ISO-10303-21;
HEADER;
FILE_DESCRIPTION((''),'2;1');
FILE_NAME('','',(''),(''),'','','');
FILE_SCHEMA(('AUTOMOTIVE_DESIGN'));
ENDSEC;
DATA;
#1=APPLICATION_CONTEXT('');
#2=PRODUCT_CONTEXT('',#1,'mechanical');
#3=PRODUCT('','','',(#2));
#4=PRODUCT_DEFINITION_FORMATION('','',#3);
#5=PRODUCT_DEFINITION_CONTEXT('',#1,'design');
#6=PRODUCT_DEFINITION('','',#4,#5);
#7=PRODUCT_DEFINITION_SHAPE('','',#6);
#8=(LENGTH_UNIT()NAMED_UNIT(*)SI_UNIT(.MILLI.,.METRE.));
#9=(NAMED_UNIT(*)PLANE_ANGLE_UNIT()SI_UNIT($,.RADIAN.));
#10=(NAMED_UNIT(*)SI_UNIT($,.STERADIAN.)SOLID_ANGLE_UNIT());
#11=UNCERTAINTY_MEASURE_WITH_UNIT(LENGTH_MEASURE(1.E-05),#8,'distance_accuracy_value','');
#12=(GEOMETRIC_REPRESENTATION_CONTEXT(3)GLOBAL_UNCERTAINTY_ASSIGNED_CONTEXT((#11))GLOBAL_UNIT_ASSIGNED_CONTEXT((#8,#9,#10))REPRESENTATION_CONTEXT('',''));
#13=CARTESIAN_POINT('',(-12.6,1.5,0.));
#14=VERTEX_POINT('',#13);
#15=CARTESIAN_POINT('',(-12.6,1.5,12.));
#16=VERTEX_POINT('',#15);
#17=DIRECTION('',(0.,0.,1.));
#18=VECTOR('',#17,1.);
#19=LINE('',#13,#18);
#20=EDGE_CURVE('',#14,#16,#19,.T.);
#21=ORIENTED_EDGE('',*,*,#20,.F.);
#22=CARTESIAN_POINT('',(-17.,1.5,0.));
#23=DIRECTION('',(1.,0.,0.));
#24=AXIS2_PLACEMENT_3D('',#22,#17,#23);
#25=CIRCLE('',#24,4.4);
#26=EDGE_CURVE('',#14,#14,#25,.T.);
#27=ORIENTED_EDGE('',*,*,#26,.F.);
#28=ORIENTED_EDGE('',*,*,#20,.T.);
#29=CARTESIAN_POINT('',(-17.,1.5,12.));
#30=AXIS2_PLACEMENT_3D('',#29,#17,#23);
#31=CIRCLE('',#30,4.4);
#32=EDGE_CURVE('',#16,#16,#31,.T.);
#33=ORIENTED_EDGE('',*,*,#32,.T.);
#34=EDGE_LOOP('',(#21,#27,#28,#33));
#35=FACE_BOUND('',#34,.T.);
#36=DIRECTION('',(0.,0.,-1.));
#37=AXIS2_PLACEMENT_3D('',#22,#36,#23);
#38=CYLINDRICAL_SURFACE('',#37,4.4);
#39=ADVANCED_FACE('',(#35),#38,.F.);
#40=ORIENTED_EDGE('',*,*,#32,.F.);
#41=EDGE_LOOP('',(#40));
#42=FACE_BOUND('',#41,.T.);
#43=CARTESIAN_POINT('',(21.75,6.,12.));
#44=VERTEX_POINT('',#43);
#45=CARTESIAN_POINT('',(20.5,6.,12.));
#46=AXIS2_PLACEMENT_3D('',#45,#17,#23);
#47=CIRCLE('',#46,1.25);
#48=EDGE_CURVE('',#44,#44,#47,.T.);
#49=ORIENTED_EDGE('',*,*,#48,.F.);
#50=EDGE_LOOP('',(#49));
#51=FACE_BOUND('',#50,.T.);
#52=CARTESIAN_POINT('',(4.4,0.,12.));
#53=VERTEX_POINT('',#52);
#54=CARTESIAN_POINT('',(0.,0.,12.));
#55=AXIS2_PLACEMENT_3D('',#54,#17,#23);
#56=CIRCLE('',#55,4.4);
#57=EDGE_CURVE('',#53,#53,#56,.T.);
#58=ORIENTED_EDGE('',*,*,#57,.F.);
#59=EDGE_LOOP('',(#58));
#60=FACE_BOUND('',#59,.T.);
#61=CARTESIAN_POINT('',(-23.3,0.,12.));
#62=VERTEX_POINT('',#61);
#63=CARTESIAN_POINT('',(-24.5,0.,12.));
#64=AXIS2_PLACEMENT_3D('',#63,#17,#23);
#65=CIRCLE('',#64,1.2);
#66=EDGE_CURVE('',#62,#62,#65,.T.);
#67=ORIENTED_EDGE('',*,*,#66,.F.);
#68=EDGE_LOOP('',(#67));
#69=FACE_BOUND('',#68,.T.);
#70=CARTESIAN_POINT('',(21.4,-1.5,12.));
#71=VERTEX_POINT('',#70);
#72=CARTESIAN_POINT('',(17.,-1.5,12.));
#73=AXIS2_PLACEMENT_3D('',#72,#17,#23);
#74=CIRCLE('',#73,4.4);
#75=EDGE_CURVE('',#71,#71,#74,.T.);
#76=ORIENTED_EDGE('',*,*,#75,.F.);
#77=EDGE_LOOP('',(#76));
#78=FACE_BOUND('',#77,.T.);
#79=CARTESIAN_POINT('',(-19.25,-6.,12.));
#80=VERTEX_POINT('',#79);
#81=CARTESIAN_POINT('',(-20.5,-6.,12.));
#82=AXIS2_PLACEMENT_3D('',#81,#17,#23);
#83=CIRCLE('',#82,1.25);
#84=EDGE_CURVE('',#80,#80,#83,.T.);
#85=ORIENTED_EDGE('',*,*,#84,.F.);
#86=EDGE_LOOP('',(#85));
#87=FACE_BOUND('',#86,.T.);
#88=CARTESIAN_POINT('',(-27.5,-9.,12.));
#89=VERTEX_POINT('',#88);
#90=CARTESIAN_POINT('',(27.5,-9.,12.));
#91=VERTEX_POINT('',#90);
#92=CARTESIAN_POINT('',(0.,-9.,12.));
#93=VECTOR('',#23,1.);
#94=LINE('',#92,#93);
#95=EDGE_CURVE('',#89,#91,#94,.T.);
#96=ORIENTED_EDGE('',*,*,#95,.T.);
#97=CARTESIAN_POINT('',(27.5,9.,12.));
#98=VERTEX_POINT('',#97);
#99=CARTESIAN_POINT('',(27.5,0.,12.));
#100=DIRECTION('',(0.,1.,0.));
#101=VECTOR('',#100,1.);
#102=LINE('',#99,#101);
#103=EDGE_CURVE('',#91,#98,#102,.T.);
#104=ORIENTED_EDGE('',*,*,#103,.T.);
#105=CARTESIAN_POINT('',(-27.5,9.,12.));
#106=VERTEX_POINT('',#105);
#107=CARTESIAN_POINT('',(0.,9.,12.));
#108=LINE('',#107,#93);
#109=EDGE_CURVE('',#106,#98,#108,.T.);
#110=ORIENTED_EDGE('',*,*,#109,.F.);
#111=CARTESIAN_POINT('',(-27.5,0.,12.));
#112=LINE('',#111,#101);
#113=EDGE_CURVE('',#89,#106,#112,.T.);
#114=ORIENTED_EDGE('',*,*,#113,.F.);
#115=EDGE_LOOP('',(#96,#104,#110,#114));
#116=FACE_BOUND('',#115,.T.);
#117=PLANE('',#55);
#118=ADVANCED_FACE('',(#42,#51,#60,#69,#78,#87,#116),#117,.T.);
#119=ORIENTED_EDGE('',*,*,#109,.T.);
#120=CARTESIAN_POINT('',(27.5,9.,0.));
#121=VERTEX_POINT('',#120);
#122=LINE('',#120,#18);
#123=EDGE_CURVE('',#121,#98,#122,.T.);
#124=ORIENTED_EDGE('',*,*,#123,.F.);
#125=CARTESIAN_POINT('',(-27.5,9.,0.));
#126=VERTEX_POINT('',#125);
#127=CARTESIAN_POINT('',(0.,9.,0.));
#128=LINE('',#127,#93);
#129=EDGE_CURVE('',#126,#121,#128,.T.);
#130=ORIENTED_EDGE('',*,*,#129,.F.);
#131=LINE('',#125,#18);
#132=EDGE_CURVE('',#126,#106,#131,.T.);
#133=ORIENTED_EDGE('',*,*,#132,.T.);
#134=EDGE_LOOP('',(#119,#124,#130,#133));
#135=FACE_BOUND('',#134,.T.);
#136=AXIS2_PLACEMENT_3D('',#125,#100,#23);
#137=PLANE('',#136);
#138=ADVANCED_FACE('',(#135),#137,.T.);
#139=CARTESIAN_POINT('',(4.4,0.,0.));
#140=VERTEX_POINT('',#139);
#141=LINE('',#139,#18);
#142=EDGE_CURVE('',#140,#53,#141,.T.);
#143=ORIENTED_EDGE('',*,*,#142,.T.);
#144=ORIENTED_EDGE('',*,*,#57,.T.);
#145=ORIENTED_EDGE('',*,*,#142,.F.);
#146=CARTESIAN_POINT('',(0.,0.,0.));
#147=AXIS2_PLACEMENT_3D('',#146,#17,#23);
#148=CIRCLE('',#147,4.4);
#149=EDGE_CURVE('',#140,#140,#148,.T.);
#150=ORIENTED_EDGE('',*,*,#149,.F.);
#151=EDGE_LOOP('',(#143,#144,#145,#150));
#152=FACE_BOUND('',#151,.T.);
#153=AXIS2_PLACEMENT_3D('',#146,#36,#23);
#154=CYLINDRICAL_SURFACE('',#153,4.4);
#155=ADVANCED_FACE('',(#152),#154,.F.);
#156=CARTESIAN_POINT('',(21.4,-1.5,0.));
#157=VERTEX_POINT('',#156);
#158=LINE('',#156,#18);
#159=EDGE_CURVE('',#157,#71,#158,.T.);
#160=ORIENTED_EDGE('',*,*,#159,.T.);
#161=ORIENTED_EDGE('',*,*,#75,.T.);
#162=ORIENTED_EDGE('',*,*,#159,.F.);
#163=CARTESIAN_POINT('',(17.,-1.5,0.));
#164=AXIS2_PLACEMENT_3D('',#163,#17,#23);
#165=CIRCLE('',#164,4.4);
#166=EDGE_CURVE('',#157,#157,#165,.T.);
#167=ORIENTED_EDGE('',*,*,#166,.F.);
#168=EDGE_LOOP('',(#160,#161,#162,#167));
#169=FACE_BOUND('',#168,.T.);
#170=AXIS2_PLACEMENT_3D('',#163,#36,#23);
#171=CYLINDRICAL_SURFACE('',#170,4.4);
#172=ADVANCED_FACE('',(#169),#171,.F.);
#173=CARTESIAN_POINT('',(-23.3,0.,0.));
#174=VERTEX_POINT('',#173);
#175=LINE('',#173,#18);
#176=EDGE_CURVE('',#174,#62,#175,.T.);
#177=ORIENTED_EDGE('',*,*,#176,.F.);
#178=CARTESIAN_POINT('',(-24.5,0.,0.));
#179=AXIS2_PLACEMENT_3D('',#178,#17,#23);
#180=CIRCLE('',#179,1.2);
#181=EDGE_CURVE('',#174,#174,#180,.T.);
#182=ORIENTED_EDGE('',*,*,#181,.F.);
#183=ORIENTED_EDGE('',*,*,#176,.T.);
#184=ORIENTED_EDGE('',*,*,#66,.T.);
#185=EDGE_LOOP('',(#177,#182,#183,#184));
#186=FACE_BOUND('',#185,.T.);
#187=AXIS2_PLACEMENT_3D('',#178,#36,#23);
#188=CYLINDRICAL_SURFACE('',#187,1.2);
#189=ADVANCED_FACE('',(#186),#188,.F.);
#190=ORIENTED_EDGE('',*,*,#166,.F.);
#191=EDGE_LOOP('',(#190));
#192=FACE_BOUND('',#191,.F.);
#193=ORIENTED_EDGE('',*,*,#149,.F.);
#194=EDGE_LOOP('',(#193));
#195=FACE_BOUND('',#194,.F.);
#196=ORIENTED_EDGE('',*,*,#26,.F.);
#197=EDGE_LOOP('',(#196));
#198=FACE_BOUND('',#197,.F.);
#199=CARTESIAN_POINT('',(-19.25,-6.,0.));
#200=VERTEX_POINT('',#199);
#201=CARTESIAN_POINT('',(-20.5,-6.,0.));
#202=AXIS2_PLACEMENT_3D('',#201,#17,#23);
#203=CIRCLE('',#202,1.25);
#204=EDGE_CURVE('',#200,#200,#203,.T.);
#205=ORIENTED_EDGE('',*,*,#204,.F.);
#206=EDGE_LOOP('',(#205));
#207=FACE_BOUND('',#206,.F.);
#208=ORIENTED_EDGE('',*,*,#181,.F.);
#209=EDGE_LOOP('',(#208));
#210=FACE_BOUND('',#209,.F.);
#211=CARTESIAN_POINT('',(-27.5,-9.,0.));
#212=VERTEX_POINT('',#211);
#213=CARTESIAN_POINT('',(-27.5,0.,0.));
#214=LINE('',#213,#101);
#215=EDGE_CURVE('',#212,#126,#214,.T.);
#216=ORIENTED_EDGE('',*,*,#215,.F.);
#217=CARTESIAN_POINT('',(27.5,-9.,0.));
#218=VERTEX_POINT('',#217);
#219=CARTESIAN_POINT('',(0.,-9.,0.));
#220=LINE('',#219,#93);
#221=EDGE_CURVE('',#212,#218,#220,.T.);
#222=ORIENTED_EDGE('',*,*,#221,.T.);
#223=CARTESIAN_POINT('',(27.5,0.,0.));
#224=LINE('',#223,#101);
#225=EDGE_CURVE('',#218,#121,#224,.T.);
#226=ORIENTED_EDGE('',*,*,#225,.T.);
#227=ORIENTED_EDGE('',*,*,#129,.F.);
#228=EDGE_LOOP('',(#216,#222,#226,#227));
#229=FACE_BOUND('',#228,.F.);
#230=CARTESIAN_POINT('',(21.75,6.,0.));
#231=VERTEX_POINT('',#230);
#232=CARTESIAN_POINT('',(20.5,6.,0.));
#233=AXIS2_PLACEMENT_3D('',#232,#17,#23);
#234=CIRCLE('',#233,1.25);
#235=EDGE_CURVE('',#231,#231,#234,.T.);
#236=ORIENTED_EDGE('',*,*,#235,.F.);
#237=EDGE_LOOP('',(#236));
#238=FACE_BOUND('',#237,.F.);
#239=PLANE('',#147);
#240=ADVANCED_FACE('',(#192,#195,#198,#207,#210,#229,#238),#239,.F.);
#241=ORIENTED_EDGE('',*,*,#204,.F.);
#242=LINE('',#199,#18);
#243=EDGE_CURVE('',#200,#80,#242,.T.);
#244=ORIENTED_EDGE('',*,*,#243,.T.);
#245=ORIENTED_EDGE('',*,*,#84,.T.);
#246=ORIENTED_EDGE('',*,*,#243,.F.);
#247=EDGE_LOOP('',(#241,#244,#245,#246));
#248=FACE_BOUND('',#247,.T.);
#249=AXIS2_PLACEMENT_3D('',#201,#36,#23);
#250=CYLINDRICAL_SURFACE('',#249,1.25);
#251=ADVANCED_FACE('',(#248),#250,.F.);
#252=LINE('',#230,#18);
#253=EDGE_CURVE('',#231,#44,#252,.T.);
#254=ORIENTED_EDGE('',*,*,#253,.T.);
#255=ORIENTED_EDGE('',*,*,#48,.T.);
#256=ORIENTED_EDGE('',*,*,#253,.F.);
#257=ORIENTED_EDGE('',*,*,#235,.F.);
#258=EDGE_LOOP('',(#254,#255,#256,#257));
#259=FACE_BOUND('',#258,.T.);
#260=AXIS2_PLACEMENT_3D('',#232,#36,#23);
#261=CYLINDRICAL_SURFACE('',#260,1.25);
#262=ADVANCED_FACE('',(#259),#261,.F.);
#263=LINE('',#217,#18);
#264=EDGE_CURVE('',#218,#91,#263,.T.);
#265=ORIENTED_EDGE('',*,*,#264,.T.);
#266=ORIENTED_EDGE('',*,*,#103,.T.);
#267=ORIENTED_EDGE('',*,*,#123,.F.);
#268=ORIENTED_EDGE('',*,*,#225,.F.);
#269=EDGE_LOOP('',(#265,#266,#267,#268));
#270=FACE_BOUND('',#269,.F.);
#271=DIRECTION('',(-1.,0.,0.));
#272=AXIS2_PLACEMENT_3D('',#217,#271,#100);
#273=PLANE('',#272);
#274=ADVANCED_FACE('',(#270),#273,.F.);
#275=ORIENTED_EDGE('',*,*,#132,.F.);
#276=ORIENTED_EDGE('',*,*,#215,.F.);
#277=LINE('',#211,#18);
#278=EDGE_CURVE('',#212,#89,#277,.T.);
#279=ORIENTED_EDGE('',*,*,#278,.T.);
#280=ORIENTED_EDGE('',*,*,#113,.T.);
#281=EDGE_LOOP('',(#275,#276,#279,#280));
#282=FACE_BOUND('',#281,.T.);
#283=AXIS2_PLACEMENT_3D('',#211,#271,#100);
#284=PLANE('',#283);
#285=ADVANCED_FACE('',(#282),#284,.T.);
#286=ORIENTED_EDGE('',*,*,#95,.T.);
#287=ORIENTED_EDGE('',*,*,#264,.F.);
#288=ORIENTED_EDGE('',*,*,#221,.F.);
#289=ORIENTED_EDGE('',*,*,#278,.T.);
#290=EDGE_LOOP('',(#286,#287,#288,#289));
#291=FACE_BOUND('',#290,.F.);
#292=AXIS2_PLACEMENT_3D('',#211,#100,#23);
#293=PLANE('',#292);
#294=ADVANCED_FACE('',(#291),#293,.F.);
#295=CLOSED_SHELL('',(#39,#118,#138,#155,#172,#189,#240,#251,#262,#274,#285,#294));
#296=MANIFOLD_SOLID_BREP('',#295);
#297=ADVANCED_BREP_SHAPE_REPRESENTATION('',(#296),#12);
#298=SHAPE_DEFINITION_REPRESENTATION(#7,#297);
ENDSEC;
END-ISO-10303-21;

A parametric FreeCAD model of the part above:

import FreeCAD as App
import Part
import Sketcher

doc = App.newDocument("Part")
params = doc.addObject("Spreadsheet::Sheet", "Params")
for row, (alias, value) in enumerate([
    ("sketch1_diameter", "2.5 mm"),
    ("sketch1_diameter2", "8.8 mm"),
    ("sketch1_diameter3", "2.4 mm"),
    ("sketch1_width", "55 mm"),
    ("sketch1_height", "18 mm"),
    ("pad1_length", "12 mm"),
], start=1):
    params.set(f"A{row}", alias)
    params.set(f"B{row}", "=" + value)
    params.setAlias(f"B{row}", alias)

body = doc.addObject("PartDesign::Body", "Body")

sketch1 = doc.addObject("Sketcher::SketchObject", "Sketch")
body.addObject(sketch1)
sketch1.AttachmentSupport = (doc.XY_Plane, [""])
sketch1.MapMode = "FlatFace"
sketch1.addGeometry([
    Part.LineSegment(App.Vector(-27.5, 9, 0), App.Vector(-27.5, -9, 0)),
    Part.LineSegment(App.Vector(-27.5, -9, 0), App.Vector(27.5, -9, 0)),
    Part.LineSegment(App.Vector(27.5, -9, 0), App.Vector(27.5, 9, 0)),
    Part.LineSegment(App.Vector(27.5, 9, 0), App.Vector(-27.5, 9, 0)),
    Part.Circle(App.Vector(-20.5, -6, 0), App.Vector(0, 0, 1), 1.2),
    Part.Circle(App.Vector(17, -1.5, 0), App.Vector(0, 0, 1), 4.4),
    Part.Circle(App.Vector(-24.5, 0, 0), App.Vector(0, 0, 1), 1.2),
    Part.Circle(App.Vector(-17, 1.5, 0), App.Vector(0, 0, 1), 4.4),
    Part.Circle(App.Vector(0, 0, 0), App.Vector(0, 0, 1), 4.4),
    Part.Circle(App.Vector(20.5, 6, 0), App.Vector(0, 0, 1), 1.2),
], False)
sketch1.addConstraint([
    Sketcher.Constraint("Coincident", 0, 2, 1, 1),
    Sketcher.Constraint("Coincident", 1, 2, 2, 1),
    Sketcher.Constraint("Coincident", 2, 2, 3, 1),
    Sketcher.Constraint("Coincident", 3, 2, 0, 1),
    Sketcher.Constraint("Vertical", 0),
    Sketcher.Constraint("Horizontal", 1),
    Sketcher.Constraint("Vertical", 2),
    Sketcher.Constraint("Horizontal", 3),
    Sketcher.Constraint("Coincident", 8, 3, -1, 1),
    Sketcher.Constraint("Equal", 5, 7),
    Sketcher.Constraint("Equal", 7, 8),
    Sketcher.Constraint("Equal", 4, 9),
    Sketcher.Constraint("Symmetric", 5, 3, 7, 3, -1, 1),
    Sketcher.Constraint("Symmetric", 4, 3, 9, 3, -1, 1),
    Sketcher.Constraint("Symmetric", 0, 2, 2, 2, -1, 1),
    Sketcher.Constraint("PointOnObject", 6, 3, -1),
    Sketcher.Constraint("Diameter", 4, 2.5),
    Sketcher.Constraint("Diameter", 5, 8.8),
    Sketcher.Constraint("Diameter", 6, 2.4),
    Sketcher.Constraint("DistanceX", 1, 1, 1, 2, 55.0),
    Sketcher.Constraint("DistanceY", 0, 2, 0, 1, 18.0),
    Sketcher.Constraint("DistanceY", 4, 3, -1, 1, 6.0),
    Sketcher.Constraint("DistanceX", -1, 1, 5, 3, 17.0),
    Sketcher.Constraint("DistanceX", 6, 3, 4, 3, 4.0),
    Sketcher.Constraint("DistanceY", 5, 3, 7, 3, 3.0),
    Sketcher.Constraint("DistanceX", 4, 3, 9, 3, 41.0),
])
sketch1.setExpression("Constraints[16]", "Params.sketch1_diameter")
sketch1.setExpression("Constraints[17]", "Params.sketch1_diameter2")
sketch1.setExpression("Constraints[18]", "Params.sketch1_diameter3")
sketch1.setExpression("Constraints[19]", "Params.sketch1_width")
sketch1.setExpression("Constraints[20]", "Params.sketch1_height")
pad1 = doc.addObject("PartDesign::Pad", "Pad")
body.addObject(pad1)
pad1.Profile = sketch1
pad1.setExpression("Length", "Params.pad1_length")

doc.recompute()
